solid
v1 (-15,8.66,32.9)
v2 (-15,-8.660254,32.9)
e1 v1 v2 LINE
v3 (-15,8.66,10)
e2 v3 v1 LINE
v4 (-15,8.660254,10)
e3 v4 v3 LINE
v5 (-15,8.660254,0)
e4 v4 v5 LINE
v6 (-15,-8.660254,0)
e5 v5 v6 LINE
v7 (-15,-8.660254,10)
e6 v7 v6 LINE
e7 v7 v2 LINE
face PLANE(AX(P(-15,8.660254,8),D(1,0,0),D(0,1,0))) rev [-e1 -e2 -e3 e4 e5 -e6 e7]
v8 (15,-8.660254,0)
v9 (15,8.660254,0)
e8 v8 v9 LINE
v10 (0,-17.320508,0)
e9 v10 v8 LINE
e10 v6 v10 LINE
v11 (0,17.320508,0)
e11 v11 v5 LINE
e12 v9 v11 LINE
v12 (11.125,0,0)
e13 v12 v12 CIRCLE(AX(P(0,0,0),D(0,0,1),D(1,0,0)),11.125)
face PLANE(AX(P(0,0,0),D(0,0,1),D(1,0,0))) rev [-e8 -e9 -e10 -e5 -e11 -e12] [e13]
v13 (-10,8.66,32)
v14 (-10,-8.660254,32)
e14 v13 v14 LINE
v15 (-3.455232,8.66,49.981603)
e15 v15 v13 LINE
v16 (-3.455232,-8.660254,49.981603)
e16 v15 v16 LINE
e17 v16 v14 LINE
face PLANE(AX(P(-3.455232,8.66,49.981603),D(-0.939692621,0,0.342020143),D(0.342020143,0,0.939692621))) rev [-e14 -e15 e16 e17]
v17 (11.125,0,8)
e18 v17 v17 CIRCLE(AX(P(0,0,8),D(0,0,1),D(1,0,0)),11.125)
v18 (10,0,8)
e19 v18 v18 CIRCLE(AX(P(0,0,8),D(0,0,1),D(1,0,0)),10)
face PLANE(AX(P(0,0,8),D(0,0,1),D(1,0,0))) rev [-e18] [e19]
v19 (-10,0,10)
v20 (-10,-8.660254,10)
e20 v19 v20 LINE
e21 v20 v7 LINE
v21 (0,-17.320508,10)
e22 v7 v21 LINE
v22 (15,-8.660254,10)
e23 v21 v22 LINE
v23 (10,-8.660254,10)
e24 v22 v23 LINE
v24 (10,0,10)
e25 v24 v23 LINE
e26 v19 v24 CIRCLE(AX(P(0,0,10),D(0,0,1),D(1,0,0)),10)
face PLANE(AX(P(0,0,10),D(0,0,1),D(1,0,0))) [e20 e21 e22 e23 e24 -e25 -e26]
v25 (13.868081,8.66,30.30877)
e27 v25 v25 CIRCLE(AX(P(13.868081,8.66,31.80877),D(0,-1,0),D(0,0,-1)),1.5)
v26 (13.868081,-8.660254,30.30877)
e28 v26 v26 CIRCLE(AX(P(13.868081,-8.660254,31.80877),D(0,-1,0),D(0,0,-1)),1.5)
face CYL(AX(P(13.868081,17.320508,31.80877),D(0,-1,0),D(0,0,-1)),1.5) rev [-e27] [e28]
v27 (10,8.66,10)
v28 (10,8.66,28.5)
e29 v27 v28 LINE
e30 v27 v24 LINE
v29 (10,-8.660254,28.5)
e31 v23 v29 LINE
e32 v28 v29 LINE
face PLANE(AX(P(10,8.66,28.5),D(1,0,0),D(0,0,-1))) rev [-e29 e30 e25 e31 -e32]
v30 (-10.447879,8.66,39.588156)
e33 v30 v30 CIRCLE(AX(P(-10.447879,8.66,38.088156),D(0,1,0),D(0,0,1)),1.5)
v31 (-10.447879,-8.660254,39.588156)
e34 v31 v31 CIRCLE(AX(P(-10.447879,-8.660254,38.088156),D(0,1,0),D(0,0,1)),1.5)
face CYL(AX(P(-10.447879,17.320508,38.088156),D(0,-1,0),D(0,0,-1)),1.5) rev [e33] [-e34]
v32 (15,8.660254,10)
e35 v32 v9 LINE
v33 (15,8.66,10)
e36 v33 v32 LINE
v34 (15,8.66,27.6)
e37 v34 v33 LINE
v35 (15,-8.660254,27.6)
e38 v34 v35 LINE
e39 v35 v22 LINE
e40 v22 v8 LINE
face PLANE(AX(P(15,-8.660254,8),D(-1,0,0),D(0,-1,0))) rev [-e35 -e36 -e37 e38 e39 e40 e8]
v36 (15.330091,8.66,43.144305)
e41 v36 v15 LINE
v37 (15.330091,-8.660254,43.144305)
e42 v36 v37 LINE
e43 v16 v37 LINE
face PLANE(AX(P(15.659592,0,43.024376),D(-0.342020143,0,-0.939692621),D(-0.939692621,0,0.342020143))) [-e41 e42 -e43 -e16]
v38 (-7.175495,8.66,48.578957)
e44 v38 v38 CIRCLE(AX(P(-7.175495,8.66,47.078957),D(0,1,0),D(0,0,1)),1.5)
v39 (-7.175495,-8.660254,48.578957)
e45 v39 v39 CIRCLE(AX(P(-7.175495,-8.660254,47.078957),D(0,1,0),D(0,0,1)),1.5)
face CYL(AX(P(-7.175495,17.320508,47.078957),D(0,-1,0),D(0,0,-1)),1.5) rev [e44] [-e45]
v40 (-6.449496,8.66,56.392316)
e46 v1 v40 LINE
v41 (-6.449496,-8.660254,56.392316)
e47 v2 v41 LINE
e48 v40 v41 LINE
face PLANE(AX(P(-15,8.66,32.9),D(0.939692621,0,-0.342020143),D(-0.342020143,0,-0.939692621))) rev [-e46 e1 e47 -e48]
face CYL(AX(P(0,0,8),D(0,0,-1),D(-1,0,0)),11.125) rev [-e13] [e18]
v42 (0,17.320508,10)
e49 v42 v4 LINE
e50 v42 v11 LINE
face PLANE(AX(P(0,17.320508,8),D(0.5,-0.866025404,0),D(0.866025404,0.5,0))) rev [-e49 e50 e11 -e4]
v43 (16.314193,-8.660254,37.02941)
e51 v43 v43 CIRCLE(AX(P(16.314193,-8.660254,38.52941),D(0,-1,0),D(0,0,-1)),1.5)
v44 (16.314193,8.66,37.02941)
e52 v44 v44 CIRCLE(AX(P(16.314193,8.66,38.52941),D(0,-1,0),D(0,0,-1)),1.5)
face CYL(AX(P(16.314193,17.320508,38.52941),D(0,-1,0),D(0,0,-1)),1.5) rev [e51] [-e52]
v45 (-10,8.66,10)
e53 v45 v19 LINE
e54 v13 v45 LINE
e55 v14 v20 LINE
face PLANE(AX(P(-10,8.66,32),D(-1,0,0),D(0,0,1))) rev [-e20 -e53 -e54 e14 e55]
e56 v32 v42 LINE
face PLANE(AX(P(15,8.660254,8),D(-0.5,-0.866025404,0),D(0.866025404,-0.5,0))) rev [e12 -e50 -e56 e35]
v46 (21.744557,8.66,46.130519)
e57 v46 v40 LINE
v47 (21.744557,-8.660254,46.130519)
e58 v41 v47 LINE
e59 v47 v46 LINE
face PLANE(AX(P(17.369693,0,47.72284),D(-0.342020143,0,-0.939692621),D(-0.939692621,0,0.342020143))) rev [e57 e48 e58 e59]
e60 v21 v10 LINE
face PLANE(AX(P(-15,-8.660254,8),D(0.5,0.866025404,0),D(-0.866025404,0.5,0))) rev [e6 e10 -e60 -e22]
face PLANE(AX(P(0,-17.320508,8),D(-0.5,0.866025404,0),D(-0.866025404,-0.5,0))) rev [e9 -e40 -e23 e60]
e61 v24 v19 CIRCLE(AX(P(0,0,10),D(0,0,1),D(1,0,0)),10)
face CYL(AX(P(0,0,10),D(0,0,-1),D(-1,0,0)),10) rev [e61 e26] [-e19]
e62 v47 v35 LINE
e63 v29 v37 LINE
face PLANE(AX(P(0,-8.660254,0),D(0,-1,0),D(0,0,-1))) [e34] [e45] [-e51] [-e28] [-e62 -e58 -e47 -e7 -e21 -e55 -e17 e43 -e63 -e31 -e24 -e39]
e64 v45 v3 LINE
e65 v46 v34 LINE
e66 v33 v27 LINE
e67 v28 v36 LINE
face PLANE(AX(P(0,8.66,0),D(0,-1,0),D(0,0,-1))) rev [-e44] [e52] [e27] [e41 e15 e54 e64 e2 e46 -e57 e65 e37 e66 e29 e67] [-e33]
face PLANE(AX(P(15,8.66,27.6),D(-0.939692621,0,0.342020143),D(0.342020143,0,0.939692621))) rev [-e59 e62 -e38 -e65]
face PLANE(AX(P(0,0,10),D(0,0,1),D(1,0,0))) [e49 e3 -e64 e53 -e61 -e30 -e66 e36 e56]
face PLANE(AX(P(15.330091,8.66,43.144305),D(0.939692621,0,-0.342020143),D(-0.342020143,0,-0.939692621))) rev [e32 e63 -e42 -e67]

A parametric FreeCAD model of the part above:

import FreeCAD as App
import Part
import Sketcher
Q = App.Units.Quantity


def add_polygon(sketch, points):
    """Adds a closed chain of lines whose ends are joined by coincident constraints."""
    first, n = sketch.GeometryCount, len(points)
    for a, b in zip(points, points[1:] + points[:1]):
        sketch.addGeometry(Part.LineSegment(App.Vector(*a, 0), App.Vector(*b, 0)), False)
    for i in range(n):
        sketch.addConstraint(Sketcher.Constraint("Coincident", first + i, 2, first + (i + 1) % n, 1))

doc = App.newDocument("Part")
body = doc.addObject("PartDesign::Body", "Body")

# Sketch on XY plane
sketch1 = body.newObject("Sketcher::SketchObject", "Sketch")
sketch1.AttachmentSupport = (doc.getObject("XY_Plane"), [""])
sketch1.MapMode = "FlatFace"
add_polygon(sketch1, [(0, 17.320508), (-15, 8.660254), (-15, -8.660254), (0, -17.320508), (15, -8.660254), (15, 8.660254)])  # lines 0-5
sketch1.addGeometry(Part.Circle(App.Vector(0, 0, 0), App.Vector(0, 0, 1), 11.125), False)  # 6
sketch1.addConstraint([
    Sketcher.Constraint("Vertical", 1),
    Sketcher.Constraint("Vertical", 4),
    Sketcher.Constraint("Coincident", 6, 3, -1, 1),
    Sketcher.Constraint("Symmetric", 0, 2, 3, 2, -1, 1),
    Sketcher.Constraint("Symmetric", 2, 2, 5, 2, -1, 1),
    Sketcher.Constraint("PointOnObject", 2, 2, -2),
    Sketcher.Constraint("Parallel", 2, 5),
    Sketcher.Constraint("Horizontal", 1, 2, 3, 2),
    Sketcher.Constraint("Diameter", 6, Q("22.25 mm")),
    Sketcher.Constraint("Angle", 0, Q("-150 deg")),
    Sketcher.Constraint("DistanceX", 0, 2, -1, 1, Q("15 mm")),
    Sketcher.Constraint("DistanceY", 1, 2, 1, 1, Q("17.320508 mm")),
])
pad1 = body.newObject("PartDesign::Pad", "Pad")
pad1.Profile = sketch1
pad1.Length = 8

# Sketch on XY plane
sketch2 = body.newObject("Sketcher::SketchObject", "Sketch001")
sketch2.AttachmentSupport = (doc.getObject("XY_Plane"), [""])
sketch2.MapMode = "FlatFace"
sketch2.AttachmentOffset = App.Placement(App.Vector(0, 0, 8), App.Rotation())
add_polygon(sketch2, [(0, 17.320508), (-15, 8.660254), (-15, -8.660254), (0, -17.320508), (15, -8.660254), (15, 8.660254)])  # lines 0-5
sketch2.addGeometry(Part.Circle(App.Vector(0, 0, 0), App.Vector(0, 0, 1), 10), False)  # 6
sketch2.addConstraint([
    Sketcher.Constraint("Vertical", 1),
    Sketcher.Constraint("Vertical", 4),
    Sketcher.Constraint("Coincident", 6, 3, -1, 1),
    Sketcher.Constraint("Symmetric", 0, 2, 3, 2, -1, 1),
    Sketcher.Constraint("Symmetric", 2, 2, 5, 2, -1, 1),
    Sketcher.Constraint("PointOnObject", 2, 2, -2),
    Sketcher.Constraint("Parallel", 2, 5),
    Sketcher.Constraint("Horizontal", 1, 2, 3, 2),
    Sketcher.Constraint("Diameter", 6, Q("20 mm")),
    Sketcher.Constraint("Angle", 0, Q("-150 deg")),
    Sketcher.Constraint("DistanceX", 0, 2, -1, 1, Q("15 mm")),
    Sketcher.Constraint("DistanceY", 1, 2, 1, 1, Q("17.320508 mm")),
])
pad2 = body.newObject("PartDesign::Pad", "Pad001")
pad2.Profile = sketch2
pad2.Length = 2

# Sketch on XZ plane
sketch3 = body.newObject("Sketcher::SketchObject", "Sketch002")
sketch3.AttachmentSupport = (doc.getObject("XZ_Plane"), [""])
sketch3.MapMode = "FlatFace"
add_polygon(sketch3, [(15, 27.6), (15, 10), (10, 10), (10, 28.5), (15.330091, 43.144305), (20.034457, 41.432056)])  # lines 0-5
add_polygon(sketch3, [(-15, 10), (-15, 32.9), (-8.159597, 51.693852), (-3.455232, 49.981603), (-10, 32), (-10, 10)])  # lines 6-11
sketch3.addConstraint([
    Sketcher.Constraint("Vertical", 0),
    Sketcher.Constraint("Horizontal", 1),
    Sketcher.Constraint("Vertical", 2),
    Sketcher.Constraint("Vertical", 6),
    Sketcher.Constraint("Vertical", 10),
    Sketcher.Constraint("Horizontal", 11),
    Sketcher.Constraint("Symmetric", 1, 2, 10, 2, -2),
    Sketcher.Constraint("Perpendicular", 3, 4),
    Sketcher.Constraint("Perpendicular", 4, 5),
    Sketcher.Constraint("Parallel", 5, 7),
    Sketcher.Constraint("Perpendicular", 7, 8),
    Sketcher.Constraint("Perpendicular", 8, 9),
    Sketcher.Constraint("Equal", 1, 11),
    Sketcher.Constraint("Equal", 4, 8),
    Sketcher.Constraint("DistanceX", 1, 2, 1, 1, Q("5 mm")),
    Sketcher.Constraint("DistanceY", 10, 2, 10, 1, Q("22 mm")),
    Sketcher.Constraint("Angle", 3, Q("70 deg")),
    Sketcher.Constraint("Distance", 7, Q("20 mm")),
    Sketcher.Constraint("DistanceY", 0, 2, 0, 1, Q("17.6 mm")),
    Sketcher.Constraint("DistanceY", 2, 1, 2, 2, Q("18.5 mm")),
    Sketcher.Constraint("DistanceX", -1, 1, 0, 2, Q("15 mm")),
    Sketcher.Constraint("DistanceY", -1, 1, 0, 2, Q("10 mm")),
    Sketcher.Constraint("DistanceY", 3, 2, 8, 2, Q("6.837298 mm")),
])
pad3 = body.newObject("PartDesign::Pad", "Pad002")
pad3.Profile = sketch3
pad3.Type = "TwoLengths"
pad3.Length = 8.66
pad3.Length2 = 8.660254
pad3.Reversed = True

# Sketch on XZ plane
sketch4 = body.newObject("Sketcher::SketchObject", "Sketch003")
sketch4.AttachmentSupport = (doc.getObject("XZ_Plane"), [""])
sketch4.MapMode = "FlatFace"
sketch4.AttachmentOffset = App.Placement(App.Vector(0, 0, 8.660254), App.Rotation())
sketch4.addGeometry([
    Part.Circle(App.Vector(-10.447879, 38.088156, 0), App.Vector(0, 0, 1), 1.5),
    Part.Circle(App.Vector(-7.175495, 47.078957, 0), App.Vector(0, 0, 1), 1.5),
    Part.Circle(App.Vector(16.314193, 38.52941, 0), App.Vector(0, 0, 1), 1.5),
    Part.Circle(App.Vector(13.868081, 31.80877, 0), App.Vector(0, 0, 1), 1.5),
], False)
sketch4.addConstraint([
    Sketcher.Constraint("Equal", 0, 1),
    Sketcher.Constraint("Equal", 1, 2),
    Sketcher.Constraint("Equal", 2, 3),
    Sketcher.Constraint("Diameter", 0, Q("3 mm")),
    Sketcher.Constraint("DistanceY", 0, 3, 1, 3, Q("8.990802 mm")),
    Sketcher.Constraint("DistanceX", 0, 3, -1, 1, Q("10.447879 mm")),
    Sketcher.Constraint("DistanceY", -1, 1, 2, 3, Q("38.52941 mm")),
    Sketcher.Constraint("DistanceX", -1, 1, 3, 3, Q("13.868081 mm")),
    Sketcher.Constraint("DistanceY", -1, 1, 3, 3, Q("31.80877 mm")),
    Sketcher.Constraint("DistanceX", 1, 3, 2, 3, Q("23.489688 mm")),
    Sketcher.Constraint("DistanceY", -1, 1, 0, 3, Q("38.088156 mm")),
    Sketcher.Constraint("DistanceX", 1, 3, -1, 1, Q("7.175495 mm")),
])
pocket1 = body.newObject("PartDesign::Pocket", "Pocket")
pocket1.Profile = sketch4
pocket1.Type = "ThroughAll"
pocket1.Midplane = True

# Sketch on an angled plane
sketch5 = body.newObject("Sketcher::SketchObject", "Sketch004")
sketch5.Placement = App.Placement(App.Vector(15.659592, 0, 43.024376), App.Rotation(App.Vector(0.939692621, 0, -0.342020143), App.Vector(0, 1, 0), App.Vector(0.342020143, 0, 0.939692621), "ZXY"))
add_polygon(sketch5, [(-25.347852, 8.66), (-25.347852, -8.660254), (4.655633, -8.660254), (4.655633, 8.66)])  # lines 0-3
sketch5.addConstraint([
    Sketcher.Constraint("Vertical", 0),
    Sketcher.Constraint("Horizontal", 1),
    Sketcher.Constraint("Vertical", 2),
    Sketcher.Constraint("Horizontal", 3),
    Sketcher.Constraint("DistanceY", -1, 1, 2, 2, Q("8.66 mm")),
    Sketcher.Constraint("DistanceX", 1, 1, 1, 2, Q("30.003485 mm")),
    Sketcher.Constraint("DistanceY", 0, 2, 0, 1, Q("17.320254 mm")),
    Sketcher.Constraint("DistanceX", 0, 2, -1, 1, Q("25.347852 mm")),
])
pad4 = body.newObject("PartDesign::Pad", "Pad003")
pad4.Profile = sketch5
pad4.Length = 5

doc.recompute()
